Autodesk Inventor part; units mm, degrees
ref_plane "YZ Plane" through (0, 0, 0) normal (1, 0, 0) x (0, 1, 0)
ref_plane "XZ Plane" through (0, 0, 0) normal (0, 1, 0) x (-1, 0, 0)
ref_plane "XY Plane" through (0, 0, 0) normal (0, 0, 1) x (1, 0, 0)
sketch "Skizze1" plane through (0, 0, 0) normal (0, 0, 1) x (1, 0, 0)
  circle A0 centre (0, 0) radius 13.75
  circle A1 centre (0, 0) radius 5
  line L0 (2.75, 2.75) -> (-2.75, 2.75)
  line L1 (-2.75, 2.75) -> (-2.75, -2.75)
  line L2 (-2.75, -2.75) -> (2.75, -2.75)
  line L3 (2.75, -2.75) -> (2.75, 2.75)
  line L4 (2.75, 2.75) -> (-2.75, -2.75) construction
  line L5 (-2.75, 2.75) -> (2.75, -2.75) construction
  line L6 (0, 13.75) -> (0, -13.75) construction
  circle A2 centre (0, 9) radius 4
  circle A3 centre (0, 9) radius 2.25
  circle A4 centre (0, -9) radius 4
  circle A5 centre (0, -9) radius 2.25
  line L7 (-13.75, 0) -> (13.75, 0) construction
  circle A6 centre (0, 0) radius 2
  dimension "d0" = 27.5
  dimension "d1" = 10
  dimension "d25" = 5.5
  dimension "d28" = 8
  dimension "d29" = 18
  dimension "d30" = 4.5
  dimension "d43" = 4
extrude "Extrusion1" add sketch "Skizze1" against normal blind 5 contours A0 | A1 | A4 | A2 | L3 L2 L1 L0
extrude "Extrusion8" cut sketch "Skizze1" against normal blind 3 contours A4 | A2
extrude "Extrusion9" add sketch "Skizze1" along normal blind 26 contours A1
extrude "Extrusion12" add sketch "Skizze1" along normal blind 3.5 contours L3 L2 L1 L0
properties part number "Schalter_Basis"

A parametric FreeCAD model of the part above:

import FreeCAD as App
import Part
import Sketcher
from FreeCAD import Vector

doc = App.newDocument("Part")
params = doc.addObject("Spreadsheet::Sheet", "Params")
for row, (alias, value) in enumerate([
    ("sketch1_diameter", "4 mm"),
    ("sketch1_diameter2", "27.5 mm"),
    ("sketch1_diameter3", "4.5 mm"),
    ("pad1_length", "5 mm"),
    ("sketch2_diameter", "8 mm"),
    ("sketch2_diameter2", "4.5 mm"),
    ("pocket1_length", "3 mm"),
    ("sketch3_diameter", "10 mm"),
    ("sketch3_width", "5.5 mm"),
    ("pad2_length", "26 mm"),
    ("sketch4_diameter", "4 mm"),
    ("sketch4_width", "5.5 mm"),
    ("pad3_length", "3.5 mm"),
], start=1):
    params.set(f"A{row}", alias)
    params.set(f"B{row}", "=" + value)
    params.setAlias(f"B{row}", alias)

body = doc.addObject("PartDesign::Body", "Body")

# Sketch on XY plane
sketch1 = doc.addObject("Sketcher::SketchObject", "Sketch")
body.addObject(sketch1)
sketch1.AttachmentSupport = (doc.XY_Plane, [""])
sketch1.MapMode = "FlatFace"
sketch1.addGeometry(Part.Circle(Vector(0, 0, 0), Vector(0, 0, 1), 13.8), False)
sketch1.addGeometry(Part.Circle(Vector(0, -9, 0), Vector(0, 0, 1), 2.2), False)
sketch1.addGeometry(Part.Circle(Vector(0, 9, 0), Vector(0, 0, 1), 2.2), False)
sketch1.addGeometry(Part.Circle(Vector(0, 0, 0), Vector(0, 0, 1), 2), False)
sketch1.addConstraint(Sketcher.Constraint("Coincident", 0, 3, -1, 1))
sketch1.addConstraint(Sketcher.Constraint("Coincident", 3, 3, -1, 1))
sketch1.addConstraint(Sketcher.Constraint("Equal", 1, 2))
sketch1.addConstraint(Sketcher.Constraint("Symmetric", 1, 3, 2, 3, -1, 1))
sketch1.addConstraint(Sketcher.Constraint("PointOnObject", 1, 3, -2))
sketch1.addConstraint(Sketcher.Constraint("Diameter", 3, 4.0))
sketch1.addConstraint(Sketcher.Constraint("Diameter", 0, 27.5))
sketch1.addConstraint(Sketcher.Constraint("Diameter", 1, 4.5))
sketch1.addConstraint(Sketcher.Constraint("DistanceY", 1, 3, 2, 3, 18.0))
sketch1.setExpression("Constraints[5]", "Params.sketch1_diameter")
sketch1.setExpression("Constraints[6]", "Params.sketch1_diameter2")
sketch1.setExpression("Constraints[7]", "Params.sketch1_diameter3")
pad1 = doc.addObject("PartDesign::Pad", "Pad")
body.addObject(pad1)
pad1.Profile = sketch1
pad1.setExpression("Length", "Params.pad1_length")
pad1.Reversed = True

# Sketch on XY plane
sketch2 = doc.addObject("Sketcher::SketchObject", "Sketch001")
body.addObject(sketch2)
sketch2.AttachmentSupport = (doc.XY_Plane, [""])
sketch2.MapMode = "FlatFace"
sketch2.addGeometry(Part.Circle(Vector(0, -9, 0), Vector(0, 0, 1), 4), False)
sketch2.addGeometry(Part.Circle(Vector(0, -9, 0), Vector(0, 0, 1), 2.2), False)
sketch2.addGeometry(Part.Circle(Vector(0, 9, 0), Vector(0, 0, 1), 4), False)
sketch2.addGeometry(Part.Circle(Vector(0, 9, 0), Vector(0, 0, 1), 2.2), False)
sketch2.addConstraint(Sketcher.Constraint("Coincident", 1, 3, 0, 3))
sketch2.addConstraint(Sketcher.Constraint("Coincident", 3, 3, 2, 3))
sketch2.addConstraint(Sketcher.Constraint("Equal", 0, 2))
sketch2.addConstraint(Sketcher.Constraint("Equal", 1, 3))
sketch2.addConstraint(Sketcher.Constraint("Symmetric", 0, 3, 2, 3, -1, 1))
sketch2.addConstraint(Sketcher.Constraint("PointOnObject", 0, 3, -2))
sketch2.addConstraint(Sketcher.Constraint("Diameter", 0, 8.0))
sketch2.addConstraint(Sketcher.Constraint("Diameter", 1, 4.5))
sketch2.addConstraint(Sketcher.Constraint("DistanceY", 0, 3, 2, 3, 18.0))
sketch2.setExpression("Constraints[6]", "Params.sketch2_diameter")
sketch2.setExpression("Constraints[7]", "Params.sketch2_diameter2")
pocket1 = doc.addObject("PartDesign::Pocket", "Pocket")
body.addObject(pocket1)
pocket1.Profile = sketch2
pocket1.setExpression("Length", "Params.pocket1_length")

# Sketch on XY plane
sketch3 = doc.addObject("Sketcher::SketchObject", "Sketch002")
body.addObject(sketch3)
sketch3.AttachmentSupport = (doc.XY_Plane, [""])
sketch3.MapMode = "FlatFace"
sketch3.addGeometry(Part.Circle(Vector(0, 0, 0), Vector(0, 0, 1), 5), False)
sketch3.addGeometry(Part.LineSegment(Vector(-3, 3, 0), Vector(3, 3, 0)), False)
sketch3.addGeometry(Part.LineSegment(Vector(3, 3, 0), Vector(3, -3, 0)), False)
sketch3.addGeometry(Part.LineSegment(Vector(3, -3, 0), Vector(-3, -3, 0)), False)
sketch3.addGeometry(Part.LineSegment(Vector(-3, -3, 0), Vector(-3, 3, 0)), False)
sketch3.addConstraint(Sketcher.Constraint("Coincident", 1, 2, 2, 1))
sketch3.addConstraint(Sketcher.Constraint("Coincident", 2, 2, 3, 1))
sketch3.addConstraint(Sketcher.Constraint("Coincident", 3, 2, 4, 1))
sketch3.addConstraint(Sketcher.Constraint("Coincident", 4, 2, 1, 1))
sketch3.addConstraint(Sketcher.Constraint("Horizontal", 1))
sketch3.addConstraint(Sketcher.Constraint("Vertical", 2))
sketch3.addConstraint(Sketcher.Constraint("Horizontal", 3))
sketch3.addConstraint(Sketcher.Constraint("Vertical", 4))
sketch3.addConstraint(Sketcher.Constraint("Coincident", 0, 3, -1, 1))
sketch3.addConstraint(Sketcher.Constraint("Symmetric", 1, 2, 3, 2, -1, 1))
sketch3.addConstraint(Sketcher.Constraint("Equal", 3, 2))
sketch3.addConstraint(Sketcher.Constraint("Diameter", 0, 10.0))
sketch3.addConstraint(Sketcher.Constraint("DistanceX", 1, 1, 1, 2, 5.5))
sketch3.setExpression("Constraints[11]", "Params.sketch3_diameter")
sketch3.setExpression("Constraints[12]", "Params.sketch3_width")
pad2 = doc.addObject("PartDesign::Pad", "Pad001")
body.addObject(pad2)
pad2.Profile = sketch3
pad2.setExpression("Length", "Params.pad2_length")

# Sketch on XY plane
sketch4 = doc.addObject("Sketcher::SketchObject", "Sketch003")
body.addObject(sketch4)
sketch4.AttachmentSupport = (doc.XY_Plane, [""])
sketch4.MapMode = "FlatFace"
sketch4.addGeometry(Part.LineSegment(Vector(2.8, -2.8, 0), Vector(2.8, 2.8, 0)), False)
sketch4.addGeometry(Part.LineSegment(Vector(2.8, 2.8, 0), Vector(-2.8, 2.8, 0)), False)
sketch4.addGeometry(Part.LineSegment(Vector(-2.8, 2.8, 0), Vector(-2.8, -2.8, 0)), False)
sketch4.addGeometry(Part.LineSegment(Vector(-2.8, -2.8, 0), Vector(2.8, -2.8, 0)), False)
sketch4.addGeometry(Part.Circle(Vector(0, 0, 0), Vector(0, 0, 1), 2), False)
sketch4.addConstraint(Sketcher.Constraint("Coincident", 0, 2, 1, 1))
sketch4.addConstraint(Sketcher.Constraint("Coincident", 1, 2, 2, 1))
sketch4.addConstraint(Sketcher.Constraint("Coincident", 2, 2, 3, 1))
sketch4.addConstraint(Sketcher.Constraint("Coincident", 3, 2, 0, 1))
sketch4.addConstraint(Sketcher.Constraint("Vertical", 0))
sketch4.addConstraint(Sketcher.Constraint("Horizontal", 1))
sketch4.addConstraint(Sketcher.Constraint("Vertical", 2))
sketch4.addConstraint(Sketcher.Constraint("Horizontal", 3))
sketch4.addConstraint(Sketcher.Constraint("Coincident", 4, 3, -1, 1))
sketch4.addConstraint(Sketcher.Constraint("Symmetric", 0, 2, 2, 2, -1, 1))
sketch4.addConstraint(Sketcher.Constraint("Equal", 3, 0))
sketch4.addConstraint(Sketcher.Constraint("Diameter", 4, 4.0))
sketch4.addConstraint(Sketcher.Constraint("DistanceX", 1, 2, 1, 1, 5.5))
sketch4.setExpression("Constraints[11]", "Params.sketch4_diameter")
sketch4.setExpression("Constraints[12]", "Params.sketch4_width")
pad3 = doc.addObject("PartDesign::Pad", "Pad002")
body.addObject(pad3)
pad3.Profile = sketch4
pad3.setExpression("Length", "Params.pad3_length")

doc.recompute()
